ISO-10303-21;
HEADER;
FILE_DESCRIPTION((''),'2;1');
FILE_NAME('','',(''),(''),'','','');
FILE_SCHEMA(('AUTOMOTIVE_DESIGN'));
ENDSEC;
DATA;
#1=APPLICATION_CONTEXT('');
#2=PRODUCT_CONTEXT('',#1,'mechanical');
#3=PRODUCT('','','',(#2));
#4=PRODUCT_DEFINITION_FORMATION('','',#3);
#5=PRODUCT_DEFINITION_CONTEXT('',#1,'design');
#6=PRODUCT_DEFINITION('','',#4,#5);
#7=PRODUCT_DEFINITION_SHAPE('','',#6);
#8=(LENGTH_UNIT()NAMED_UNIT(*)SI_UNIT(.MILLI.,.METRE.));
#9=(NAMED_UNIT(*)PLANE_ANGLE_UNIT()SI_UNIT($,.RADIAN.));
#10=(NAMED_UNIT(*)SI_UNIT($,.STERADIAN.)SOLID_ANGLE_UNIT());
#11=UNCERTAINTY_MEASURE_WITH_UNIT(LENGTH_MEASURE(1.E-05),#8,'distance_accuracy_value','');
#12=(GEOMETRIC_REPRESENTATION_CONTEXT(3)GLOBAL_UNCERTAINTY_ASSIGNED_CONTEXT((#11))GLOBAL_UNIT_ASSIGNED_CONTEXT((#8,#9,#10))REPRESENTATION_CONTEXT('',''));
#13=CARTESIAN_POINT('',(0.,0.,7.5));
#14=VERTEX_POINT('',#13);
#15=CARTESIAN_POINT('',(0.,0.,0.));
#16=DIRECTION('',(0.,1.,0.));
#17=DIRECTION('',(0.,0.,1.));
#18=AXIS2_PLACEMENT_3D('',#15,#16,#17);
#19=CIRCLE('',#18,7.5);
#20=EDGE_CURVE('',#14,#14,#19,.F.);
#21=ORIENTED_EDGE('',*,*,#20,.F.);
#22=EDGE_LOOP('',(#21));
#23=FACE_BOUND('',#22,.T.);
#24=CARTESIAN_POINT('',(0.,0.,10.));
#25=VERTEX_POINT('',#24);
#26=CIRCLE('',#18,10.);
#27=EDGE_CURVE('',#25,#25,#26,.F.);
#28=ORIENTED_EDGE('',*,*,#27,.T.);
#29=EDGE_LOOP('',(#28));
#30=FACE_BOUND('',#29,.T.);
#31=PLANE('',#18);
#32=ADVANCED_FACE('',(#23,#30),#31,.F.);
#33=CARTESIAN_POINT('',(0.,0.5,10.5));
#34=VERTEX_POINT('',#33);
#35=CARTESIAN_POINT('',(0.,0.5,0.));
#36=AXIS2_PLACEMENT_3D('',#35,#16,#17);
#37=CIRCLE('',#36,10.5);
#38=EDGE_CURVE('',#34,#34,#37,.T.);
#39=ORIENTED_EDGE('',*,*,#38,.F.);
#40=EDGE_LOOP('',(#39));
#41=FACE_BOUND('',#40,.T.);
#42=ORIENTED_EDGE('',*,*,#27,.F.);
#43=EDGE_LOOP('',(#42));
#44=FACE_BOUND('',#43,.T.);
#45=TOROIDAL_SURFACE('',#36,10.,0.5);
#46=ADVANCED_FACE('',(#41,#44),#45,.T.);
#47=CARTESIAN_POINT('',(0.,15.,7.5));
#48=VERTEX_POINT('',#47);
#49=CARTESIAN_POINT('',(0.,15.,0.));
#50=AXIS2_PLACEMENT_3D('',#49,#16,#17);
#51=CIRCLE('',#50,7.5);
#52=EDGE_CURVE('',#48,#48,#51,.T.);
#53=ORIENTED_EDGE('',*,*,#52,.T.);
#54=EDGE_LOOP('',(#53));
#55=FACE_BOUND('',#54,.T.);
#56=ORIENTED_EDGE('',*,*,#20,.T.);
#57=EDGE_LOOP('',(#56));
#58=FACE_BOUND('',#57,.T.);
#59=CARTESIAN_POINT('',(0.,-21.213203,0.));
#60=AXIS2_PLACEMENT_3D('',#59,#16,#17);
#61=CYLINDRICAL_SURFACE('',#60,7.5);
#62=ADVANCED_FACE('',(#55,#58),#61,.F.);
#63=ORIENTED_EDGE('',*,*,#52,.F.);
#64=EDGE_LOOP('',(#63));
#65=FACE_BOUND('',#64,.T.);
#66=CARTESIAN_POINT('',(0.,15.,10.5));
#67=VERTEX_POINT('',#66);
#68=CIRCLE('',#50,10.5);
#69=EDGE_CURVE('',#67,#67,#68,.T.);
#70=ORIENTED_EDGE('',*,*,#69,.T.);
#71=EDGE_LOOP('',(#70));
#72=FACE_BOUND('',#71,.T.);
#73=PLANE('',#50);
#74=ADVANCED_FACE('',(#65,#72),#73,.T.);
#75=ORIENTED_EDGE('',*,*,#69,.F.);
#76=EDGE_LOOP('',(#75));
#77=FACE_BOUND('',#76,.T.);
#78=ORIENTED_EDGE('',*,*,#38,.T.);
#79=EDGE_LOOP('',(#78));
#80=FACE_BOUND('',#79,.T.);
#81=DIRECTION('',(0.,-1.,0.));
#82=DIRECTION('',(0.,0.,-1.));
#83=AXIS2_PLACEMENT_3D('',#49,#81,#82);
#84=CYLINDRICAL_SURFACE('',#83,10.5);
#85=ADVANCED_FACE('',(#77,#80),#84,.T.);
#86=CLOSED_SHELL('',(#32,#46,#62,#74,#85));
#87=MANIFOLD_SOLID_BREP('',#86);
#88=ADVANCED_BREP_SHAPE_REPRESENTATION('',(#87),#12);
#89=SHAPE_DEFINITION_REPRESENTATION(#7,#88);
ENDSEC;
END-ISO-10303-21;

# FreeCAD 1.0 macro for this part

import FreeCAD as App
import Part
import Sketcher


def edges_at(feature, points):
    """Names of the edges that pass closest to the given points."""
    edges = feature.Shape.Edges
    near = lambda p: min(range(len(edges)), key=lambda i: edges[i].distToShape(Part.Vertex(*p))[0])
    return sorted({f"Edge{near(p) + 1}" for p in points})

doc = App.newDocument("Part")
body = doc.addObject("PartDesign::Body", "Body")

# Sketch on XZ plane
sketch1 = body.newObject("Sketcher::SketchObject", "Sketch")
sketch1.AttachmentSupport = (doc.getObject("XZ_Plane"), [""])
sketch1.MapMode = "FlatFace"
sketch1.addGeometry(Part.Circle(App.Vector(0, 0, 0), App.Vector(0, 0, 1), 10), False)
sketch1.addConstraint([
    Sketcher.Constraint("Coincident", 0, 3, -1, 1),
    Sketcher.Constraint("Diameter", 0, 21.0),
])
pad1 = body.newObject("PartDesign::Pad", "Pad")
pad1.Profile = sketch1
pad1.Length = 15
pad1.Reversed = True

# Sketch on XZ plane
sketch2 = body.newObject("Sketcher::SketchObject", "Sketch001")
sketch2.AttachmentSupport = (doc.getObject("XZ_Plane"), [""])
sketch2.MapMode = "FlatFace"
sketch2.AttachmentOffset = App.Placement(App.Vector(0, 0, -15), App.Rotation())
sketch2.addGeometry(Part.Circle(App.Vector(0, 0, 0), App.Vector(0, 0, 1), 8), False)
sketch2.addConstraint([
    Sketcher.Constraint("Coincident", 0, 3, -1, 1),
    Sketcher.Constraint("Diameter", 0, 15.0),
])
pocket1 = body.newObject("PartDesign::Pocket", "Pocket")
pocket1.Profile = sketch2
pocket1.Length = 15
pocket1.Reversed = True
doc.recompute()

fillet = body.newObject("PartDesign::Fillet", "Fillet")
fillet.Base = (pocket1, edges_at(pocket1, [(0, 0, -10.5)]))
fillet.Radius = 0.5

doc.recompute()
